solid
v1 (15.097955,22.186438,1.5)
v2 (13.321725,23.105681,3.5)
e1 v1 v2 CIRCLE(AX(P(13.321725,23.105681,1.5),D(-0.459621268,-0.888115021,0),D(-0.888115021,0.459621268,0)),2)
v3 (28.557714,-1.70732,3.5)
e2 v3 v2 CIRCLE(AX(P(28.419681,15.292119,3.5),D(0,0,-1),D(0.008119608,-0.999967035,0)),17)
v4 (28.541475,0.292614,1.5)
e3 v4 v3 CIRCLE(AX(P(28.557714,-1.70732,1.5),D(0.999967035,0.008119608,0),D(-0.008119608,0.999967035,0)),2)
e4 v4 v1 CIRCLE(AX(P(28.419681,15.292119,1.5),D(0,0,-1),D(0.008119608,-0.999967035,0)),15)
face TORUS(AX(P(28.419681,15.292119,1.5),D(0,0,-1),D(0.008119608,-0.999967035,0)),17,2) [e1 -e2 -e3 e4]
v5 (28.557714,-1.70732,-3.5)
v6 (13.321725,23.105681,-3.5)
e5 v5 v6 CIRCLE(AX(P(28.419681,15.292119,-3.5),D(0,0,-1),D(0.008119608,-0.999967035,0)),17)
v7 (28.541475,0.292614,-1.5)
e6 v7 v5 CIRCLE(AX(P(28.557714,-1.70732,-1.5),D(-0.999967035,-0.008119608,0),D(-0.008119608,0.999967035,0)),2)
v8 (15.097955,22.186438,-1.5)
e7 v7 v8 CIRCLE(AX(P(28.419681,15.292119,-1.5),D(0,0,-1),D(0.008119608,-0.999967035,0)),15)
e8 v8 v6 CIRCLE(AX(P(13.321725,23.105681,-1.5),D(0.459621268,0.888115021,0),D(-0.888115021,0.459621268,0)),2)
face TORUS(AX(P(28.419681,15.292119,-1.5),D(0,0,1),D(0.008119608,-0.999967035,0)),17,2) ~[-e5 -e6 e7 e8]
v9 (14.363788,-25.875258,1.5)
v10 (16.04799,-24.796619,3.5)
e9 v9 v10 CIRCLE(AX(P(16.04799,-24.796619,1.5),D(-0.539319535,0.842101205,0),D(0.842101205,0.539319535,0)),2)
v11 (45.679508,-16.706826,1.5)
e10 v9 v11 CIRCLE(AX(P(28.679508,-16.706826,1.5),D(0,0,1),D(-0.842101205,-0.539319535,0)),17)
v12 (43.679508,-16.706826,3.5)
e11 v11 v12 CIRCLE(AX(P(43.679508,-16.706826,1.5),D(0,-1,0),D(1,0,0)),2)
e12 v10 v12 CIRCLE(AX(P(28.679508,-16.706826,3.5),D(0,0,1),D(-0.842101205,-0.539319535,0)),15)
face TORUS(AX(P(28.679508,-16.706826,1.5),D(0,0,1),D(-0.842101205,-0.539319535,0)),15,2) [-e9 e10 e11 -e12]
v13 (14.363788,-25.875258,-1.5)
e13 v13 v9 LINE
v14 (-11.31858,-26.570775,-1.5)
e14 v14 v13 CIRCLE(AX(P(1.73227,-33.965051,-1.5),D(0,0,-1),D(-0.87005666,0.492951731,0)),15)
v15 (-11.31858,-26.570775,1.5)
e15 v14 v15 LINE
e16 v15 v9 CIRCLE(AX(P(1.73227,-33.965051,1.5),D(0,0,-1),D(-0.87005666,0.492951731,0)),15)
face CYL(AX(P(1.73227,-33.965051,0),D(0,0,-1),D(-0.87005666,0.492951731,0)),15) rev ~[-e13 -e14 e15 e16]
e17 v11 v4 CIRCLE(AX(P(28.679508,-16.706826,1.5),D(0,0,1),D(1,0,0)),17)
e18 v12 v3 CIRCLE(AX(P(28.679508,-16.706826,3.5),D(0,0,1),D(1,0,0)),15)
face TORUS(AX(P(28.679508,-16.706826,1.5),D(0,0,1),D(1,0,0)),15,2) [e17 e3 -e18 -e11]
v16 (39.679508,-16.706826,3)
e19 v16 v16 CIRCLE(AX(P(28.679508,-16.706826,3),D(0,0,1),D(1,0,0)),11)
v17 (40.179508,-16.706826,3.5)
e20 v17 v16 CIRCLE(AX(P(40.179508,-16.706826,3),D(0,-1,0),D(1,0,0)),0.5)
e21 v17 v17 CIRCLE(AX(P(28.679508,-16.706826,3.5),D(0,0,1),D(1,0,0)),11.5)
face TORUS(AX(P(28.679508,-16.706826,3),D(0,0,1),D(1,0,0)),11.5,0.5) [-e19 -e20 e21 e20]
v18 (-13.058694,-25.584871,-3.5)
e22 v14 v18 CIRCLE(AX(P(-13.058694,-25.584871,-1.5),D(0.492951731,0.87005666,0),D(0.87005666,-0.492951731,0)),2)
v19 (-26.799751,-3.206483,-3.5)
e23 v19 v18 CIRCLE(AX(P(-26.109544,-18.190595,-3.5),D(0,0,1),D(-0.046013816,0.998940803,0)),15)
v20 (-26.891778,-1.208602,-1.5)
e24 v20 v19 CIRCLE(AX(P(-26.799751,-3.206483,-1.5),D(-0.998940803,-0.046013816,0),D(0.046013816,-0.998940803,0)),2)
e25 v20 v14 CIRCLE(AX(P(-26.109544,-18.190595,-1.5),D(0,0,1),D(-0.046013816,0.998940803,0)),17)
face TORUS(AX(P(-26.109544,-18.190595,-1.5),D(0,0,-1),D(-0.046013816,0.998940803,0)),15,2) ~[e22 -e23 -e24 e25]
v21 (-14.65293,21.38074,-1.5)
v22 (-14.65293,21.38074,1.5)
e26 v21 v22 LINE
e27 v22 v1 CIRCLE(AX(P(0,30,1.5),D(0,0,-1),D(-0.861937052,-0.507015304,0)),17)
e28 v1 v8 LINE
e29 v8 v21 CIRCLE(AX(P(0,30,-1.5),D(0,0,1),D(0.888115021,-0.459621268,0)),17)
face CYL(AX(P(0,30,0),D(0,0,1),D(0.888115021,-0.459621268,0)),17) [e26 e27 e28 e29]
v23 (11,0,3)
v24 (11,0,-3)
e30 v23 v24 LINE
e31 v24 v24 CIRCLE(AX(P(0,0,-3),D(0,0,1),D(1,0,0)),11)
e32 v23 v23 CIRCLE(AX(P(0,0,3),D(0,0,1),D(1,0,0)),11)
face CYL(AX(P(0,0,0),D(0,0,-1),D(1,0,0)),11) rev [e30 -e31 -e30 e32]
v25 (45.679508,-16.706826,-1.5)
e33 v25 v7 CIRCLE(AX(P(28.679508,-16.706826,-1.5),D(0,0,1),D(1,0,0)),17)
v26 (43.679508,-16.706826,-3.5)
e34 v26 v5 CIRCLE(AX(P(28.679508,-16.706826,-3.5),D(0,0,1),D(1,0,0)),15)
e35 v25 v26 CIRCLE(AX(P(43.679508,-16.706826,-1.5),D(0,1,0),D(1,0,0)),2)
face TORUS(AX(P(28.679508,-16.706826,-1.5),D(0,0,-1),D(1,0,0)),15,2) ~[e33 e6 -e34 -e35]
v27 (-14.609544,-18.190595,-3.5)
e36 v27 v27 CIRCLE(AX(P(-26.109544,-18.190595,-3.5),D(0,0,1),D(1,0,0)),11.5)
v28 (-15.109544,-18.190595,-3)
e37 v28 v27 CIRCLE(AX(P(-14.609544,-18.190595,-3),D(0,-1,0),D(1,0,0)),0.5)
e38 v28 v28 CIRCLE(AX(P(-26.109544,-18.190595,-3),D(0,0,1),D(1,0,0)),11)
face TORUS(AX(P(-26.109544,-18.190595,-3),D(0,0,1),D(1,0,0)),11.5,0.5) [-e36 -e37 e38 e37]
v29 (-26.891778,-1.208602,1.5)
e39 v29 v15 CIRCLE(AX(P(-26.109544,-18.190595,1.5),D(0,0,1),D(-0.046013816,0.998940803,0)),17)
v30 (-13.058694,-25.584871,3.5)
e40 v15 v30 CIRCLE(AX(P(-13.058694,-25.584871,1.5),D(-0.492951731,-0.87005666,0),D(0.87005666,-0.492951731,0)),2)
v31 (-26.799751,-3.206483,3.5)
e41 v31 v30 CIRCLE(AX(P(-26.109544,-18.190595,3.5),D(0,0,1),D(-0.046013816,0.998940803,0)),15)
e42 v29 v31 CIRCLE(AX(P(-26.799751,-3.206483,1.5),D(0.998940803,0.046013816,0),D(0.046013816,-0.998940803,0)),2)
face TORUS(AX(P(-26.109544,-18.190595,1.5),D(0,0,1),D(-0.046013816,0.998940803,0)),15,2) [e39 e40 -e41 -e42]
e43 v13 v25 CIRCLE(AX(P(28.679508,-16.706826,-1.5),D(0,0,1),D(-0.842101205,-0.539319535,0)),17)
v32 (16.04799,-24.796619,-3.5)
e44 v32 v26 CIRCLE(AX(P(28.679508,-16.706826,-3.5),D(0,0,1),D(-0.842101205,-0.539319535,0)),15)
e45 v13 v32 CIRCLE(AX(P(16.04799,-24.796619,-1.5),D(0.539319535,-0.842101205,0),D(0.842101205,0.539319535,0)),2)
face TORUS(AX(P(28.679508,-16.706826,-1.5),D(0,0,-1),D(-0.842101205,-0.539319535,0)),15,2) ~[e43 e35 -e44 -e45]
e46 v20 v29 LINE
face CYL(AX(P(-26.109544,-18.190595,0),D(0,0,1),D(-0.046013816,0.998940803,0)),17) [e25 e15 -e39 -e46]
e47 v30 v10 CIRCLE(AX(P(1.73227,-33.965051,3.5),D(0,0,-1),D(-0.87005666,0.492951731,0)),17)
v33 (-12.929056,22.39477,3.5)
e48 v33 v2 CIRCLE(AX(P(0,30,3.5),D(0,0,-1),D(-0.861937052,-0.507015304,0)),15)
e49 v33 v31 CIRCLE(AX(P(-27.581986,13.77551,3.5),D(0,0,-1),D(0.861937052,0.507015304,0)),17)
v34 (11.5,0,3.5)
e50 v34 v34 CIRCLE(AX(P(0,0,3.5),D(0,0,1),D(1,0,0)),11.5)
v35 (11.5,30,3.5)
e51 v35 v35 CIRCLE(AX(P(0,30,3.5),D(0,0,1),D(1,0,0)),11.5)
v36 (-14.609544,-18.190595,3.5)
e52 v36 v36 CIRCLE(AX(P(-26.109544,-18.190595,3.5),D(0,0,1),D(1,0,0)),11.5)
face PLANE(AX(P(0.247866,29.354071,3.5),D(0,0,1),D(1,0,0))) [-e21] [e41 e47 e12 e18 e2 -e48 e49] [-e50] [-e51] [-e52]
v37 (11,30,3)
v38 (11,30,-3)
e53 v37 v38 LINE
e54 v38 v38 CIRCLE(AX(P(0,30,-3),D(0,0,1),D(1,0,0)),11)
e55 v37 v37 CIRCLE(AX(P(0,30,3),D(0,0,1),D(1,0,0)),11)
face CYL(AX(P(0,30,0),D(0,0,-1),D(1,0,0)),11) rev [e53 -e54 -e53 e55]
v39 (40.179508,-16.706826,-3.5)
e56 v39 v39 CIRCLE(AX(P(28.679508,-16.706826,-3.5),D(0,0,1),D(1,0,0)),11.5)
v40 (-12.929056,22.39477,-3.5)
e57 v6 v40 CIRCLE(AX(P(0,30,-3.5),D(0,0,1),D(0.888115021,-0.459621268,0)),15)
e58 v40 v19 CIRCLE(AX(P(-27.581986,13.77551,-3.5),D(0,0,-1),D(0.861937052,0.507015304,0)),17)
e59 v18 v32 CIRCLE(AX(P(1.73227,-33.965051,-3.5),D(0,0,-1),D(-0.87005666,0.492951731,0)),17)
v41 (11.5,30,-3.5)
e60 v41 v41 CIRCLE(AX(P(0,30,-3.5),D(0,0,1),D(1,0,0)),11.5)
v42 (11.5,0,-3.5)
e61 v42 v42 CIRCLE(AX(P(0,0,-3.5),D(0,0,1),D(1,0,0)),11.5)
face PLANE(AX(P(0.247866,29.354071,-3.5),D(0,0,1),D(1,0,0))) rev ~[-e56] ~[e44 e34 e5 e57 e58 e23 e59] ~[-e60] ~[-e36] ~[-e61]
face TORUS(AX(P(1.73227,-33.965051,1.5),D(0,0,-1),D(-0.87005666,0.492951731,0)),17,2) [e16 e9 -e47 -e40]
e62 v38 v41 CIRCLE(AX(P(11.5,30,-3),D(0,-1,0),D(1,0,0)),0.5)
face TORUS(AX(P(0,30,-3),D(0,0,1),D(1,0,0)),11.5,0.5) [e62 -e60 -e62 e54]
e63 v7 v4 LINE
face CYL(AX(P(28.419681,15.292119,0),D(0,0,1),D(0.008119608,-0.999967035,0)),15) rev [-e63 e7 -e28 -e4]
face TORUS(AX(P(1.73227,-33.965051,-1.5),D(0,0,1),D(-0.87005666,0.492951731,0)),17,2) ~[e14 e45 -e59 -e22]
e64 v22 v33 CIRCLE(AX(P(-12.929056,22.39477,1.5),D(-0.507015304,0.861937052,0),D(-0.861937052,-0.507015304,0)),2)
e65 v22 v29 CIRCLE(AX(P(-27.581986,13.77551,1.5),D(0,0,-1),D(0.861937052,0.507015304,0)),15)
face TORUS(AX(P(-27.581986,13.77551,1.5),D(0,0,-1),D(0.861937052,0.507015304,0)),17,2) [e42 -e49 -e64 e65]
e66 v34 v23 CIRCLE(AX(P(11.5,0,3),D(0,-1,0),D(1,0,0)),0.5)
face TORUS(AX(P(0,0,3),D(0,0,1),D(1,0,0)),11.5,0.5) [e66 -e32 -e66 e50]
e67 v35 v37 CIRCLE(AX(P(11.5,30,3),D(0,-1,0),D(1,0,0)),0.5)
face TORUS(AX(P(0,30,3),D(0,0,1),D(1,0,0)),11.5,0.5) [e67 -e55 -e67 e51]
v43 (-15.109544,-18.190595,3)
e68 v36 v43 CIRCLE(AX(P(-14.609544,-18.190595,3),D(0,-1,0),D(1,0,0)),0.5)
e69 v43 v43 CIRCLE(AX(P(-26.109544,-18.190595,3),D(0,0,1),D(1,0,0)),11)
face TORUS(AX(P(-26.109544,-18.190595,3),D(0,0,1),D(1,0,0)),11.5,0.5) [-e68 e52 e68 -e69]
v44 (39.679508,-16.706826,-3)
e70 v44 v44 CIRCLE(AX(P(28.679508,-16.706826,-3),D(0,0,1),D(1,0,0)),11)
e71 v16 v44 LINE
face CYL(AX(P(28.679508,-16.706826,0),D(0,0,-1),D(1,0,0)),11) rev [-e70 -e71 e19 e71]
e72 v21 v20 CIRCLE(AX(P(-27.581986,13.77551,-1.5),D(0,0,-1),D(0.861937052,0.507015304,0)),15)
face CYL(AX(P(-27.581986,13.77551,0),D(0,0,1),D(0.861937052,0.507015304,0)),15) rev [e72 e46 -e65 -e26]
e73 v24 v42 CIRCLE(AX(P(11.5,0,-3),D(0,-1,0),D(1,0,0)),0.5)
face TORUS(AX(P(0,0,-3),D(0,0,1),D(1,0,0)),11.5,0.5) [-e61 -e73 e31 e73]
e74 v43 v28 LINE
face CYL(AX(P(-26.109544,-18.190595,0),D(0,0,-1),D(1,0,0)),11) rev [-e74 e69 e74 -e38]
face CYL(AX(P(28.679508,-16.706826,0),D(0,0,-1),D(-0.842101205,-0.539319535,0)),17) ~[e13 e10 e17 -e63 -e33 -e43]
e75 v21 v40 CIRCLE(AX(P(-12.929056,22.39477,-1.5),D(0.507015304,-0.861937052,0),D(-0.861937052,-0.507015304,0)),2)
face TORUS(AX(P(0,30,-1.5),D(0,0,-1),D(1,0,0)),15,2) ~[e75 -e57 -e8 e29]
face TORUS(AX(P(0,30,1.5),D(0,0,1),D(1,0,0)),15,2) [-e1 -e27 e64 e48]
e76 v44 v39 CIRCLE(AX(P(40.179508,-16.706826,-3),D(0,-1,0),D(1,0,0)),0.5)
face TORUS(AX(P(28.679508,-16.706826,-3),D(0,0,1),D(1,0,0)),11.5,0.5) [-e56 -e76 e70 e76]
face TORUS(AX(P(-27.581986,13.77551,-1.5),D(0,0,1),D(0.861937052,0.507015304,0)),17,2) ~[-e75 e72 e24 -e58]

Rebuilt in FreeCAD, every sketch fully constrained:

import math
import FreeCAD as App
import Part
import Sketcher

V = App.Vector


def edges_at(feature, points):
    """Names of the edges that pass closest to the given points."""
    edges = feature.Shape.Edges
    near = lambda p: min(range(len(edges)), key=lambda i: edges[i].distToShape(Part.Vertex(*p))[0])
    return sorted({f"Edge{near(p) + 1}" for p in points})

doc = App.newDocument("Part")
params = doc.addObject("Spreadsheet::Sheet", "Params")
for row, (alias, value) in enumerate([
    ("sketch1_diameter", "22 mm"),
    ("sketch1_radius", "17 mm"),
    ("sketch1_radius2", "15 mm"),
    ("pad1_length", "7 mm"),
    ("fillet_radius", "2 mm"),
    ("fillet2_radius", "0.5 mm"),
], start=1):
    params.set(f"A{row}", alias)
    params.set(f"B{row}", "=" + value)
    params.setAlias(f"B{row}", alias)

body = doc.addObject("PartDesign::Body", "Body")

# Sketch on XY plane
sketch1 = body.newObject("Sketcher::SketchObject", "Sketch")
sketch1.AttachmentSupport = (doc.getObject("XY_Plane"), [""])
sketch1.MapMode = "FlatFace"
sketch1.addGeometry([
    Part.ArcOfCircle(Part.Circle(V(0, 30, 0), V(0, 0, 1), 17), math.radians(-27), math.radians(0)),  # 0
    Part.ArcOfCircle(Part.Circle(V(0, 30, 0), V(0, 0, 1), 17), math.radians(0), math.radians(210)),  # 1
    Part.ArcOfCircle(Part.Circle(V(-28, 14, 0), V(0, 0, 1), 15), math.radians(-87), math.radians(30)),  # 2
    Part.ArcOfCircle(Part.Circle(V(-26, -18, 0), V(0, 0, 1), 17), math.radians(93), math.radians(330)),  # 3
    Part.ArcOfCircle(Part.Circle(V(2, -34, 0), V(0, 0, 1), 15), math.radians(33), math.radians(150)),  # 4
    Part.ArcOfCircle(Part.Circle(V(29, -17, 0), V(0, 0, 1), 17), math.radians(-147), math.radians(0)),  # 5
    Part.ArcOfCircle(Part.Circle(V(29, -17, 0), V(0, 0, 1), 17), math.radians(0), math.radians(90)),  # 6
    Part.ArcOfCircle(Part.Circle(V(28, 15, 0), V(0, 0, 1), 15), math.radians(153), math.radians(270)),  # 7
    Part.Circle(V(-26, -18, 0), V(0, 0, 1), 11),  # 8
    Part.Circle(V(0, 0, 0), V(0, 0, 1), 11),  # 9
    Part.Circle(V(29, -17, 0), V(0, 0, 1), 11),  # 10
    Part.Circle(V(0, 30, 0), V(0, 0, 1), 11),  # 11
], False)
sketch1.addConstraint([
    Sketcher.Constraint("Tangent", 0, 2, 1, 1),
    Sketcher.Constraint("Tangent", 1, 2, 2, 2),
    Sketcher.Constraint("Tangent", 2, 1, 3, 1),
    Sketcher.Constraint("Tangent", 3, 2, 4, 2),
    Sketcher.Constraint("Tangent", 4, 1, 5, 1),
    Sketcher.Constraint("Tangent", 5, 2, 6, 1),
    Sketcher.Constraint("Tangent", 6, 2, 7, 2),
    Sketcher.Constraint("Tangent", 7, 1, 0, 1),
    Sketcher.Constraint("Coincident", 9, 3, -1, 1),
    Sketcher.Constraint("Coincident", 8, 3, 3, 3),
    Sketcher.Constraint("Coincident", 10, 3, 5, 3),
    Sketcher.Constraint("Coincident", 11, 3, 0, 3),
    Sketcher.Constraint("Equal", 0, 1),
    Sketcher.Constraint("Equal", 1, 3),
    Sketcher.Constraint("Equal", 2, 4),
    Sketcher.Constraint("Equal", 3, 5),
    Sketcher.Constraint("Equal", 5, 6),
    Sketcher.Constraint("Equal", 4, 7),
    Sketcher.Constraint("Equal", 8, 9),
    Sketcher.Constraint("Equal", 9, 10),
    Sketcher.Constraint("Equal", 10, 11),
    Sketcher.Constraint("PointOnObject", 0, 3, -2),
    Sketcher.Constraint("Horizontal", 11, 3, 0, 2),
    Sketcher.Constraint("Horizontal", 10, 3, 5, 2),
    Sketcher.Constraint("Diameter", 8, 22.0),
    Sketcher.Constraint("Radius", 0, 17.0),
    Sketcher.Constraint("Radius", 2, 15.0),
    Sketcher.Constraint("DistanceY", -1, 1, 0, 3, 30.0),
    Sketcher.Constraint("DistanceY", 2, 1, -1, 1, 1.208602),
    Sketcher.Constraint("DistanceX", 2, 1, 3, 2, 15.573198),
    Sketcher.Constraint("DistanceY", -1, 1, 2, 3, 13.77551),
    Sketcher.Constraint("DistanceX", -1, 1, 5, 3, 28.679508),
])
sketch1.setExpression("Constraints[24]", "Params.sketch1_diameter")
sketch1.setExpression("Constraints[25]", "Params.sketch1_radius")
sketch1.setExpression("Constraints[26]", "Params.sketch1_radius2")
pad1 = body.newObject("PartDesign::Pad", "Pad")
pad1.Profile = sketch1
pad1.setExpression("Length", "Params.pad1_length")
pad1.Midplane = True
doc.recompute()

fillet = body.newObject("PartDesign::Fillet", "Fillet")
fillet.Base = (pad1, edges_at(pad1, [
    (-4.467, 46.403, 3.5),
    (15.637, 7.443, 3.5),
    (33.456, -33.022, 3.5),
    (-4.467, 46.403, -3.5),
]))
fillet.setExpression("Radius", "Params.fillet_radius")
doc.recompute()

fillet2 = body.newObject("PartDesign::Fillet", "Fillet001")
fillet2.Base = (fillet, edges_at(fillet, [
    (-11, 0, 3.5),
    (17.68, -16.707, 3.5),
    (-37.11, -18.191, 3.5),
    (-0.406, 44.995, -3.5),
    (13.933, 6.397, -3.5),
    (-12.635, 5.677, -3.5),
    (32.894, -31.103, -3.5),
    (-38.892, -26.04, -3.5),
    (1.272, -16.971, -3.5),
    (-11, 30, -3.5),
    (-11, 0, -3.5),
    (-37.11, -18.191, -3.5),
    (17.68, -16.707, -3.5),
    (-11, 30, 3.5),
]))
fillet2.setExpression("Radius", "Params.fillet2_radius")

doc.recompute()
